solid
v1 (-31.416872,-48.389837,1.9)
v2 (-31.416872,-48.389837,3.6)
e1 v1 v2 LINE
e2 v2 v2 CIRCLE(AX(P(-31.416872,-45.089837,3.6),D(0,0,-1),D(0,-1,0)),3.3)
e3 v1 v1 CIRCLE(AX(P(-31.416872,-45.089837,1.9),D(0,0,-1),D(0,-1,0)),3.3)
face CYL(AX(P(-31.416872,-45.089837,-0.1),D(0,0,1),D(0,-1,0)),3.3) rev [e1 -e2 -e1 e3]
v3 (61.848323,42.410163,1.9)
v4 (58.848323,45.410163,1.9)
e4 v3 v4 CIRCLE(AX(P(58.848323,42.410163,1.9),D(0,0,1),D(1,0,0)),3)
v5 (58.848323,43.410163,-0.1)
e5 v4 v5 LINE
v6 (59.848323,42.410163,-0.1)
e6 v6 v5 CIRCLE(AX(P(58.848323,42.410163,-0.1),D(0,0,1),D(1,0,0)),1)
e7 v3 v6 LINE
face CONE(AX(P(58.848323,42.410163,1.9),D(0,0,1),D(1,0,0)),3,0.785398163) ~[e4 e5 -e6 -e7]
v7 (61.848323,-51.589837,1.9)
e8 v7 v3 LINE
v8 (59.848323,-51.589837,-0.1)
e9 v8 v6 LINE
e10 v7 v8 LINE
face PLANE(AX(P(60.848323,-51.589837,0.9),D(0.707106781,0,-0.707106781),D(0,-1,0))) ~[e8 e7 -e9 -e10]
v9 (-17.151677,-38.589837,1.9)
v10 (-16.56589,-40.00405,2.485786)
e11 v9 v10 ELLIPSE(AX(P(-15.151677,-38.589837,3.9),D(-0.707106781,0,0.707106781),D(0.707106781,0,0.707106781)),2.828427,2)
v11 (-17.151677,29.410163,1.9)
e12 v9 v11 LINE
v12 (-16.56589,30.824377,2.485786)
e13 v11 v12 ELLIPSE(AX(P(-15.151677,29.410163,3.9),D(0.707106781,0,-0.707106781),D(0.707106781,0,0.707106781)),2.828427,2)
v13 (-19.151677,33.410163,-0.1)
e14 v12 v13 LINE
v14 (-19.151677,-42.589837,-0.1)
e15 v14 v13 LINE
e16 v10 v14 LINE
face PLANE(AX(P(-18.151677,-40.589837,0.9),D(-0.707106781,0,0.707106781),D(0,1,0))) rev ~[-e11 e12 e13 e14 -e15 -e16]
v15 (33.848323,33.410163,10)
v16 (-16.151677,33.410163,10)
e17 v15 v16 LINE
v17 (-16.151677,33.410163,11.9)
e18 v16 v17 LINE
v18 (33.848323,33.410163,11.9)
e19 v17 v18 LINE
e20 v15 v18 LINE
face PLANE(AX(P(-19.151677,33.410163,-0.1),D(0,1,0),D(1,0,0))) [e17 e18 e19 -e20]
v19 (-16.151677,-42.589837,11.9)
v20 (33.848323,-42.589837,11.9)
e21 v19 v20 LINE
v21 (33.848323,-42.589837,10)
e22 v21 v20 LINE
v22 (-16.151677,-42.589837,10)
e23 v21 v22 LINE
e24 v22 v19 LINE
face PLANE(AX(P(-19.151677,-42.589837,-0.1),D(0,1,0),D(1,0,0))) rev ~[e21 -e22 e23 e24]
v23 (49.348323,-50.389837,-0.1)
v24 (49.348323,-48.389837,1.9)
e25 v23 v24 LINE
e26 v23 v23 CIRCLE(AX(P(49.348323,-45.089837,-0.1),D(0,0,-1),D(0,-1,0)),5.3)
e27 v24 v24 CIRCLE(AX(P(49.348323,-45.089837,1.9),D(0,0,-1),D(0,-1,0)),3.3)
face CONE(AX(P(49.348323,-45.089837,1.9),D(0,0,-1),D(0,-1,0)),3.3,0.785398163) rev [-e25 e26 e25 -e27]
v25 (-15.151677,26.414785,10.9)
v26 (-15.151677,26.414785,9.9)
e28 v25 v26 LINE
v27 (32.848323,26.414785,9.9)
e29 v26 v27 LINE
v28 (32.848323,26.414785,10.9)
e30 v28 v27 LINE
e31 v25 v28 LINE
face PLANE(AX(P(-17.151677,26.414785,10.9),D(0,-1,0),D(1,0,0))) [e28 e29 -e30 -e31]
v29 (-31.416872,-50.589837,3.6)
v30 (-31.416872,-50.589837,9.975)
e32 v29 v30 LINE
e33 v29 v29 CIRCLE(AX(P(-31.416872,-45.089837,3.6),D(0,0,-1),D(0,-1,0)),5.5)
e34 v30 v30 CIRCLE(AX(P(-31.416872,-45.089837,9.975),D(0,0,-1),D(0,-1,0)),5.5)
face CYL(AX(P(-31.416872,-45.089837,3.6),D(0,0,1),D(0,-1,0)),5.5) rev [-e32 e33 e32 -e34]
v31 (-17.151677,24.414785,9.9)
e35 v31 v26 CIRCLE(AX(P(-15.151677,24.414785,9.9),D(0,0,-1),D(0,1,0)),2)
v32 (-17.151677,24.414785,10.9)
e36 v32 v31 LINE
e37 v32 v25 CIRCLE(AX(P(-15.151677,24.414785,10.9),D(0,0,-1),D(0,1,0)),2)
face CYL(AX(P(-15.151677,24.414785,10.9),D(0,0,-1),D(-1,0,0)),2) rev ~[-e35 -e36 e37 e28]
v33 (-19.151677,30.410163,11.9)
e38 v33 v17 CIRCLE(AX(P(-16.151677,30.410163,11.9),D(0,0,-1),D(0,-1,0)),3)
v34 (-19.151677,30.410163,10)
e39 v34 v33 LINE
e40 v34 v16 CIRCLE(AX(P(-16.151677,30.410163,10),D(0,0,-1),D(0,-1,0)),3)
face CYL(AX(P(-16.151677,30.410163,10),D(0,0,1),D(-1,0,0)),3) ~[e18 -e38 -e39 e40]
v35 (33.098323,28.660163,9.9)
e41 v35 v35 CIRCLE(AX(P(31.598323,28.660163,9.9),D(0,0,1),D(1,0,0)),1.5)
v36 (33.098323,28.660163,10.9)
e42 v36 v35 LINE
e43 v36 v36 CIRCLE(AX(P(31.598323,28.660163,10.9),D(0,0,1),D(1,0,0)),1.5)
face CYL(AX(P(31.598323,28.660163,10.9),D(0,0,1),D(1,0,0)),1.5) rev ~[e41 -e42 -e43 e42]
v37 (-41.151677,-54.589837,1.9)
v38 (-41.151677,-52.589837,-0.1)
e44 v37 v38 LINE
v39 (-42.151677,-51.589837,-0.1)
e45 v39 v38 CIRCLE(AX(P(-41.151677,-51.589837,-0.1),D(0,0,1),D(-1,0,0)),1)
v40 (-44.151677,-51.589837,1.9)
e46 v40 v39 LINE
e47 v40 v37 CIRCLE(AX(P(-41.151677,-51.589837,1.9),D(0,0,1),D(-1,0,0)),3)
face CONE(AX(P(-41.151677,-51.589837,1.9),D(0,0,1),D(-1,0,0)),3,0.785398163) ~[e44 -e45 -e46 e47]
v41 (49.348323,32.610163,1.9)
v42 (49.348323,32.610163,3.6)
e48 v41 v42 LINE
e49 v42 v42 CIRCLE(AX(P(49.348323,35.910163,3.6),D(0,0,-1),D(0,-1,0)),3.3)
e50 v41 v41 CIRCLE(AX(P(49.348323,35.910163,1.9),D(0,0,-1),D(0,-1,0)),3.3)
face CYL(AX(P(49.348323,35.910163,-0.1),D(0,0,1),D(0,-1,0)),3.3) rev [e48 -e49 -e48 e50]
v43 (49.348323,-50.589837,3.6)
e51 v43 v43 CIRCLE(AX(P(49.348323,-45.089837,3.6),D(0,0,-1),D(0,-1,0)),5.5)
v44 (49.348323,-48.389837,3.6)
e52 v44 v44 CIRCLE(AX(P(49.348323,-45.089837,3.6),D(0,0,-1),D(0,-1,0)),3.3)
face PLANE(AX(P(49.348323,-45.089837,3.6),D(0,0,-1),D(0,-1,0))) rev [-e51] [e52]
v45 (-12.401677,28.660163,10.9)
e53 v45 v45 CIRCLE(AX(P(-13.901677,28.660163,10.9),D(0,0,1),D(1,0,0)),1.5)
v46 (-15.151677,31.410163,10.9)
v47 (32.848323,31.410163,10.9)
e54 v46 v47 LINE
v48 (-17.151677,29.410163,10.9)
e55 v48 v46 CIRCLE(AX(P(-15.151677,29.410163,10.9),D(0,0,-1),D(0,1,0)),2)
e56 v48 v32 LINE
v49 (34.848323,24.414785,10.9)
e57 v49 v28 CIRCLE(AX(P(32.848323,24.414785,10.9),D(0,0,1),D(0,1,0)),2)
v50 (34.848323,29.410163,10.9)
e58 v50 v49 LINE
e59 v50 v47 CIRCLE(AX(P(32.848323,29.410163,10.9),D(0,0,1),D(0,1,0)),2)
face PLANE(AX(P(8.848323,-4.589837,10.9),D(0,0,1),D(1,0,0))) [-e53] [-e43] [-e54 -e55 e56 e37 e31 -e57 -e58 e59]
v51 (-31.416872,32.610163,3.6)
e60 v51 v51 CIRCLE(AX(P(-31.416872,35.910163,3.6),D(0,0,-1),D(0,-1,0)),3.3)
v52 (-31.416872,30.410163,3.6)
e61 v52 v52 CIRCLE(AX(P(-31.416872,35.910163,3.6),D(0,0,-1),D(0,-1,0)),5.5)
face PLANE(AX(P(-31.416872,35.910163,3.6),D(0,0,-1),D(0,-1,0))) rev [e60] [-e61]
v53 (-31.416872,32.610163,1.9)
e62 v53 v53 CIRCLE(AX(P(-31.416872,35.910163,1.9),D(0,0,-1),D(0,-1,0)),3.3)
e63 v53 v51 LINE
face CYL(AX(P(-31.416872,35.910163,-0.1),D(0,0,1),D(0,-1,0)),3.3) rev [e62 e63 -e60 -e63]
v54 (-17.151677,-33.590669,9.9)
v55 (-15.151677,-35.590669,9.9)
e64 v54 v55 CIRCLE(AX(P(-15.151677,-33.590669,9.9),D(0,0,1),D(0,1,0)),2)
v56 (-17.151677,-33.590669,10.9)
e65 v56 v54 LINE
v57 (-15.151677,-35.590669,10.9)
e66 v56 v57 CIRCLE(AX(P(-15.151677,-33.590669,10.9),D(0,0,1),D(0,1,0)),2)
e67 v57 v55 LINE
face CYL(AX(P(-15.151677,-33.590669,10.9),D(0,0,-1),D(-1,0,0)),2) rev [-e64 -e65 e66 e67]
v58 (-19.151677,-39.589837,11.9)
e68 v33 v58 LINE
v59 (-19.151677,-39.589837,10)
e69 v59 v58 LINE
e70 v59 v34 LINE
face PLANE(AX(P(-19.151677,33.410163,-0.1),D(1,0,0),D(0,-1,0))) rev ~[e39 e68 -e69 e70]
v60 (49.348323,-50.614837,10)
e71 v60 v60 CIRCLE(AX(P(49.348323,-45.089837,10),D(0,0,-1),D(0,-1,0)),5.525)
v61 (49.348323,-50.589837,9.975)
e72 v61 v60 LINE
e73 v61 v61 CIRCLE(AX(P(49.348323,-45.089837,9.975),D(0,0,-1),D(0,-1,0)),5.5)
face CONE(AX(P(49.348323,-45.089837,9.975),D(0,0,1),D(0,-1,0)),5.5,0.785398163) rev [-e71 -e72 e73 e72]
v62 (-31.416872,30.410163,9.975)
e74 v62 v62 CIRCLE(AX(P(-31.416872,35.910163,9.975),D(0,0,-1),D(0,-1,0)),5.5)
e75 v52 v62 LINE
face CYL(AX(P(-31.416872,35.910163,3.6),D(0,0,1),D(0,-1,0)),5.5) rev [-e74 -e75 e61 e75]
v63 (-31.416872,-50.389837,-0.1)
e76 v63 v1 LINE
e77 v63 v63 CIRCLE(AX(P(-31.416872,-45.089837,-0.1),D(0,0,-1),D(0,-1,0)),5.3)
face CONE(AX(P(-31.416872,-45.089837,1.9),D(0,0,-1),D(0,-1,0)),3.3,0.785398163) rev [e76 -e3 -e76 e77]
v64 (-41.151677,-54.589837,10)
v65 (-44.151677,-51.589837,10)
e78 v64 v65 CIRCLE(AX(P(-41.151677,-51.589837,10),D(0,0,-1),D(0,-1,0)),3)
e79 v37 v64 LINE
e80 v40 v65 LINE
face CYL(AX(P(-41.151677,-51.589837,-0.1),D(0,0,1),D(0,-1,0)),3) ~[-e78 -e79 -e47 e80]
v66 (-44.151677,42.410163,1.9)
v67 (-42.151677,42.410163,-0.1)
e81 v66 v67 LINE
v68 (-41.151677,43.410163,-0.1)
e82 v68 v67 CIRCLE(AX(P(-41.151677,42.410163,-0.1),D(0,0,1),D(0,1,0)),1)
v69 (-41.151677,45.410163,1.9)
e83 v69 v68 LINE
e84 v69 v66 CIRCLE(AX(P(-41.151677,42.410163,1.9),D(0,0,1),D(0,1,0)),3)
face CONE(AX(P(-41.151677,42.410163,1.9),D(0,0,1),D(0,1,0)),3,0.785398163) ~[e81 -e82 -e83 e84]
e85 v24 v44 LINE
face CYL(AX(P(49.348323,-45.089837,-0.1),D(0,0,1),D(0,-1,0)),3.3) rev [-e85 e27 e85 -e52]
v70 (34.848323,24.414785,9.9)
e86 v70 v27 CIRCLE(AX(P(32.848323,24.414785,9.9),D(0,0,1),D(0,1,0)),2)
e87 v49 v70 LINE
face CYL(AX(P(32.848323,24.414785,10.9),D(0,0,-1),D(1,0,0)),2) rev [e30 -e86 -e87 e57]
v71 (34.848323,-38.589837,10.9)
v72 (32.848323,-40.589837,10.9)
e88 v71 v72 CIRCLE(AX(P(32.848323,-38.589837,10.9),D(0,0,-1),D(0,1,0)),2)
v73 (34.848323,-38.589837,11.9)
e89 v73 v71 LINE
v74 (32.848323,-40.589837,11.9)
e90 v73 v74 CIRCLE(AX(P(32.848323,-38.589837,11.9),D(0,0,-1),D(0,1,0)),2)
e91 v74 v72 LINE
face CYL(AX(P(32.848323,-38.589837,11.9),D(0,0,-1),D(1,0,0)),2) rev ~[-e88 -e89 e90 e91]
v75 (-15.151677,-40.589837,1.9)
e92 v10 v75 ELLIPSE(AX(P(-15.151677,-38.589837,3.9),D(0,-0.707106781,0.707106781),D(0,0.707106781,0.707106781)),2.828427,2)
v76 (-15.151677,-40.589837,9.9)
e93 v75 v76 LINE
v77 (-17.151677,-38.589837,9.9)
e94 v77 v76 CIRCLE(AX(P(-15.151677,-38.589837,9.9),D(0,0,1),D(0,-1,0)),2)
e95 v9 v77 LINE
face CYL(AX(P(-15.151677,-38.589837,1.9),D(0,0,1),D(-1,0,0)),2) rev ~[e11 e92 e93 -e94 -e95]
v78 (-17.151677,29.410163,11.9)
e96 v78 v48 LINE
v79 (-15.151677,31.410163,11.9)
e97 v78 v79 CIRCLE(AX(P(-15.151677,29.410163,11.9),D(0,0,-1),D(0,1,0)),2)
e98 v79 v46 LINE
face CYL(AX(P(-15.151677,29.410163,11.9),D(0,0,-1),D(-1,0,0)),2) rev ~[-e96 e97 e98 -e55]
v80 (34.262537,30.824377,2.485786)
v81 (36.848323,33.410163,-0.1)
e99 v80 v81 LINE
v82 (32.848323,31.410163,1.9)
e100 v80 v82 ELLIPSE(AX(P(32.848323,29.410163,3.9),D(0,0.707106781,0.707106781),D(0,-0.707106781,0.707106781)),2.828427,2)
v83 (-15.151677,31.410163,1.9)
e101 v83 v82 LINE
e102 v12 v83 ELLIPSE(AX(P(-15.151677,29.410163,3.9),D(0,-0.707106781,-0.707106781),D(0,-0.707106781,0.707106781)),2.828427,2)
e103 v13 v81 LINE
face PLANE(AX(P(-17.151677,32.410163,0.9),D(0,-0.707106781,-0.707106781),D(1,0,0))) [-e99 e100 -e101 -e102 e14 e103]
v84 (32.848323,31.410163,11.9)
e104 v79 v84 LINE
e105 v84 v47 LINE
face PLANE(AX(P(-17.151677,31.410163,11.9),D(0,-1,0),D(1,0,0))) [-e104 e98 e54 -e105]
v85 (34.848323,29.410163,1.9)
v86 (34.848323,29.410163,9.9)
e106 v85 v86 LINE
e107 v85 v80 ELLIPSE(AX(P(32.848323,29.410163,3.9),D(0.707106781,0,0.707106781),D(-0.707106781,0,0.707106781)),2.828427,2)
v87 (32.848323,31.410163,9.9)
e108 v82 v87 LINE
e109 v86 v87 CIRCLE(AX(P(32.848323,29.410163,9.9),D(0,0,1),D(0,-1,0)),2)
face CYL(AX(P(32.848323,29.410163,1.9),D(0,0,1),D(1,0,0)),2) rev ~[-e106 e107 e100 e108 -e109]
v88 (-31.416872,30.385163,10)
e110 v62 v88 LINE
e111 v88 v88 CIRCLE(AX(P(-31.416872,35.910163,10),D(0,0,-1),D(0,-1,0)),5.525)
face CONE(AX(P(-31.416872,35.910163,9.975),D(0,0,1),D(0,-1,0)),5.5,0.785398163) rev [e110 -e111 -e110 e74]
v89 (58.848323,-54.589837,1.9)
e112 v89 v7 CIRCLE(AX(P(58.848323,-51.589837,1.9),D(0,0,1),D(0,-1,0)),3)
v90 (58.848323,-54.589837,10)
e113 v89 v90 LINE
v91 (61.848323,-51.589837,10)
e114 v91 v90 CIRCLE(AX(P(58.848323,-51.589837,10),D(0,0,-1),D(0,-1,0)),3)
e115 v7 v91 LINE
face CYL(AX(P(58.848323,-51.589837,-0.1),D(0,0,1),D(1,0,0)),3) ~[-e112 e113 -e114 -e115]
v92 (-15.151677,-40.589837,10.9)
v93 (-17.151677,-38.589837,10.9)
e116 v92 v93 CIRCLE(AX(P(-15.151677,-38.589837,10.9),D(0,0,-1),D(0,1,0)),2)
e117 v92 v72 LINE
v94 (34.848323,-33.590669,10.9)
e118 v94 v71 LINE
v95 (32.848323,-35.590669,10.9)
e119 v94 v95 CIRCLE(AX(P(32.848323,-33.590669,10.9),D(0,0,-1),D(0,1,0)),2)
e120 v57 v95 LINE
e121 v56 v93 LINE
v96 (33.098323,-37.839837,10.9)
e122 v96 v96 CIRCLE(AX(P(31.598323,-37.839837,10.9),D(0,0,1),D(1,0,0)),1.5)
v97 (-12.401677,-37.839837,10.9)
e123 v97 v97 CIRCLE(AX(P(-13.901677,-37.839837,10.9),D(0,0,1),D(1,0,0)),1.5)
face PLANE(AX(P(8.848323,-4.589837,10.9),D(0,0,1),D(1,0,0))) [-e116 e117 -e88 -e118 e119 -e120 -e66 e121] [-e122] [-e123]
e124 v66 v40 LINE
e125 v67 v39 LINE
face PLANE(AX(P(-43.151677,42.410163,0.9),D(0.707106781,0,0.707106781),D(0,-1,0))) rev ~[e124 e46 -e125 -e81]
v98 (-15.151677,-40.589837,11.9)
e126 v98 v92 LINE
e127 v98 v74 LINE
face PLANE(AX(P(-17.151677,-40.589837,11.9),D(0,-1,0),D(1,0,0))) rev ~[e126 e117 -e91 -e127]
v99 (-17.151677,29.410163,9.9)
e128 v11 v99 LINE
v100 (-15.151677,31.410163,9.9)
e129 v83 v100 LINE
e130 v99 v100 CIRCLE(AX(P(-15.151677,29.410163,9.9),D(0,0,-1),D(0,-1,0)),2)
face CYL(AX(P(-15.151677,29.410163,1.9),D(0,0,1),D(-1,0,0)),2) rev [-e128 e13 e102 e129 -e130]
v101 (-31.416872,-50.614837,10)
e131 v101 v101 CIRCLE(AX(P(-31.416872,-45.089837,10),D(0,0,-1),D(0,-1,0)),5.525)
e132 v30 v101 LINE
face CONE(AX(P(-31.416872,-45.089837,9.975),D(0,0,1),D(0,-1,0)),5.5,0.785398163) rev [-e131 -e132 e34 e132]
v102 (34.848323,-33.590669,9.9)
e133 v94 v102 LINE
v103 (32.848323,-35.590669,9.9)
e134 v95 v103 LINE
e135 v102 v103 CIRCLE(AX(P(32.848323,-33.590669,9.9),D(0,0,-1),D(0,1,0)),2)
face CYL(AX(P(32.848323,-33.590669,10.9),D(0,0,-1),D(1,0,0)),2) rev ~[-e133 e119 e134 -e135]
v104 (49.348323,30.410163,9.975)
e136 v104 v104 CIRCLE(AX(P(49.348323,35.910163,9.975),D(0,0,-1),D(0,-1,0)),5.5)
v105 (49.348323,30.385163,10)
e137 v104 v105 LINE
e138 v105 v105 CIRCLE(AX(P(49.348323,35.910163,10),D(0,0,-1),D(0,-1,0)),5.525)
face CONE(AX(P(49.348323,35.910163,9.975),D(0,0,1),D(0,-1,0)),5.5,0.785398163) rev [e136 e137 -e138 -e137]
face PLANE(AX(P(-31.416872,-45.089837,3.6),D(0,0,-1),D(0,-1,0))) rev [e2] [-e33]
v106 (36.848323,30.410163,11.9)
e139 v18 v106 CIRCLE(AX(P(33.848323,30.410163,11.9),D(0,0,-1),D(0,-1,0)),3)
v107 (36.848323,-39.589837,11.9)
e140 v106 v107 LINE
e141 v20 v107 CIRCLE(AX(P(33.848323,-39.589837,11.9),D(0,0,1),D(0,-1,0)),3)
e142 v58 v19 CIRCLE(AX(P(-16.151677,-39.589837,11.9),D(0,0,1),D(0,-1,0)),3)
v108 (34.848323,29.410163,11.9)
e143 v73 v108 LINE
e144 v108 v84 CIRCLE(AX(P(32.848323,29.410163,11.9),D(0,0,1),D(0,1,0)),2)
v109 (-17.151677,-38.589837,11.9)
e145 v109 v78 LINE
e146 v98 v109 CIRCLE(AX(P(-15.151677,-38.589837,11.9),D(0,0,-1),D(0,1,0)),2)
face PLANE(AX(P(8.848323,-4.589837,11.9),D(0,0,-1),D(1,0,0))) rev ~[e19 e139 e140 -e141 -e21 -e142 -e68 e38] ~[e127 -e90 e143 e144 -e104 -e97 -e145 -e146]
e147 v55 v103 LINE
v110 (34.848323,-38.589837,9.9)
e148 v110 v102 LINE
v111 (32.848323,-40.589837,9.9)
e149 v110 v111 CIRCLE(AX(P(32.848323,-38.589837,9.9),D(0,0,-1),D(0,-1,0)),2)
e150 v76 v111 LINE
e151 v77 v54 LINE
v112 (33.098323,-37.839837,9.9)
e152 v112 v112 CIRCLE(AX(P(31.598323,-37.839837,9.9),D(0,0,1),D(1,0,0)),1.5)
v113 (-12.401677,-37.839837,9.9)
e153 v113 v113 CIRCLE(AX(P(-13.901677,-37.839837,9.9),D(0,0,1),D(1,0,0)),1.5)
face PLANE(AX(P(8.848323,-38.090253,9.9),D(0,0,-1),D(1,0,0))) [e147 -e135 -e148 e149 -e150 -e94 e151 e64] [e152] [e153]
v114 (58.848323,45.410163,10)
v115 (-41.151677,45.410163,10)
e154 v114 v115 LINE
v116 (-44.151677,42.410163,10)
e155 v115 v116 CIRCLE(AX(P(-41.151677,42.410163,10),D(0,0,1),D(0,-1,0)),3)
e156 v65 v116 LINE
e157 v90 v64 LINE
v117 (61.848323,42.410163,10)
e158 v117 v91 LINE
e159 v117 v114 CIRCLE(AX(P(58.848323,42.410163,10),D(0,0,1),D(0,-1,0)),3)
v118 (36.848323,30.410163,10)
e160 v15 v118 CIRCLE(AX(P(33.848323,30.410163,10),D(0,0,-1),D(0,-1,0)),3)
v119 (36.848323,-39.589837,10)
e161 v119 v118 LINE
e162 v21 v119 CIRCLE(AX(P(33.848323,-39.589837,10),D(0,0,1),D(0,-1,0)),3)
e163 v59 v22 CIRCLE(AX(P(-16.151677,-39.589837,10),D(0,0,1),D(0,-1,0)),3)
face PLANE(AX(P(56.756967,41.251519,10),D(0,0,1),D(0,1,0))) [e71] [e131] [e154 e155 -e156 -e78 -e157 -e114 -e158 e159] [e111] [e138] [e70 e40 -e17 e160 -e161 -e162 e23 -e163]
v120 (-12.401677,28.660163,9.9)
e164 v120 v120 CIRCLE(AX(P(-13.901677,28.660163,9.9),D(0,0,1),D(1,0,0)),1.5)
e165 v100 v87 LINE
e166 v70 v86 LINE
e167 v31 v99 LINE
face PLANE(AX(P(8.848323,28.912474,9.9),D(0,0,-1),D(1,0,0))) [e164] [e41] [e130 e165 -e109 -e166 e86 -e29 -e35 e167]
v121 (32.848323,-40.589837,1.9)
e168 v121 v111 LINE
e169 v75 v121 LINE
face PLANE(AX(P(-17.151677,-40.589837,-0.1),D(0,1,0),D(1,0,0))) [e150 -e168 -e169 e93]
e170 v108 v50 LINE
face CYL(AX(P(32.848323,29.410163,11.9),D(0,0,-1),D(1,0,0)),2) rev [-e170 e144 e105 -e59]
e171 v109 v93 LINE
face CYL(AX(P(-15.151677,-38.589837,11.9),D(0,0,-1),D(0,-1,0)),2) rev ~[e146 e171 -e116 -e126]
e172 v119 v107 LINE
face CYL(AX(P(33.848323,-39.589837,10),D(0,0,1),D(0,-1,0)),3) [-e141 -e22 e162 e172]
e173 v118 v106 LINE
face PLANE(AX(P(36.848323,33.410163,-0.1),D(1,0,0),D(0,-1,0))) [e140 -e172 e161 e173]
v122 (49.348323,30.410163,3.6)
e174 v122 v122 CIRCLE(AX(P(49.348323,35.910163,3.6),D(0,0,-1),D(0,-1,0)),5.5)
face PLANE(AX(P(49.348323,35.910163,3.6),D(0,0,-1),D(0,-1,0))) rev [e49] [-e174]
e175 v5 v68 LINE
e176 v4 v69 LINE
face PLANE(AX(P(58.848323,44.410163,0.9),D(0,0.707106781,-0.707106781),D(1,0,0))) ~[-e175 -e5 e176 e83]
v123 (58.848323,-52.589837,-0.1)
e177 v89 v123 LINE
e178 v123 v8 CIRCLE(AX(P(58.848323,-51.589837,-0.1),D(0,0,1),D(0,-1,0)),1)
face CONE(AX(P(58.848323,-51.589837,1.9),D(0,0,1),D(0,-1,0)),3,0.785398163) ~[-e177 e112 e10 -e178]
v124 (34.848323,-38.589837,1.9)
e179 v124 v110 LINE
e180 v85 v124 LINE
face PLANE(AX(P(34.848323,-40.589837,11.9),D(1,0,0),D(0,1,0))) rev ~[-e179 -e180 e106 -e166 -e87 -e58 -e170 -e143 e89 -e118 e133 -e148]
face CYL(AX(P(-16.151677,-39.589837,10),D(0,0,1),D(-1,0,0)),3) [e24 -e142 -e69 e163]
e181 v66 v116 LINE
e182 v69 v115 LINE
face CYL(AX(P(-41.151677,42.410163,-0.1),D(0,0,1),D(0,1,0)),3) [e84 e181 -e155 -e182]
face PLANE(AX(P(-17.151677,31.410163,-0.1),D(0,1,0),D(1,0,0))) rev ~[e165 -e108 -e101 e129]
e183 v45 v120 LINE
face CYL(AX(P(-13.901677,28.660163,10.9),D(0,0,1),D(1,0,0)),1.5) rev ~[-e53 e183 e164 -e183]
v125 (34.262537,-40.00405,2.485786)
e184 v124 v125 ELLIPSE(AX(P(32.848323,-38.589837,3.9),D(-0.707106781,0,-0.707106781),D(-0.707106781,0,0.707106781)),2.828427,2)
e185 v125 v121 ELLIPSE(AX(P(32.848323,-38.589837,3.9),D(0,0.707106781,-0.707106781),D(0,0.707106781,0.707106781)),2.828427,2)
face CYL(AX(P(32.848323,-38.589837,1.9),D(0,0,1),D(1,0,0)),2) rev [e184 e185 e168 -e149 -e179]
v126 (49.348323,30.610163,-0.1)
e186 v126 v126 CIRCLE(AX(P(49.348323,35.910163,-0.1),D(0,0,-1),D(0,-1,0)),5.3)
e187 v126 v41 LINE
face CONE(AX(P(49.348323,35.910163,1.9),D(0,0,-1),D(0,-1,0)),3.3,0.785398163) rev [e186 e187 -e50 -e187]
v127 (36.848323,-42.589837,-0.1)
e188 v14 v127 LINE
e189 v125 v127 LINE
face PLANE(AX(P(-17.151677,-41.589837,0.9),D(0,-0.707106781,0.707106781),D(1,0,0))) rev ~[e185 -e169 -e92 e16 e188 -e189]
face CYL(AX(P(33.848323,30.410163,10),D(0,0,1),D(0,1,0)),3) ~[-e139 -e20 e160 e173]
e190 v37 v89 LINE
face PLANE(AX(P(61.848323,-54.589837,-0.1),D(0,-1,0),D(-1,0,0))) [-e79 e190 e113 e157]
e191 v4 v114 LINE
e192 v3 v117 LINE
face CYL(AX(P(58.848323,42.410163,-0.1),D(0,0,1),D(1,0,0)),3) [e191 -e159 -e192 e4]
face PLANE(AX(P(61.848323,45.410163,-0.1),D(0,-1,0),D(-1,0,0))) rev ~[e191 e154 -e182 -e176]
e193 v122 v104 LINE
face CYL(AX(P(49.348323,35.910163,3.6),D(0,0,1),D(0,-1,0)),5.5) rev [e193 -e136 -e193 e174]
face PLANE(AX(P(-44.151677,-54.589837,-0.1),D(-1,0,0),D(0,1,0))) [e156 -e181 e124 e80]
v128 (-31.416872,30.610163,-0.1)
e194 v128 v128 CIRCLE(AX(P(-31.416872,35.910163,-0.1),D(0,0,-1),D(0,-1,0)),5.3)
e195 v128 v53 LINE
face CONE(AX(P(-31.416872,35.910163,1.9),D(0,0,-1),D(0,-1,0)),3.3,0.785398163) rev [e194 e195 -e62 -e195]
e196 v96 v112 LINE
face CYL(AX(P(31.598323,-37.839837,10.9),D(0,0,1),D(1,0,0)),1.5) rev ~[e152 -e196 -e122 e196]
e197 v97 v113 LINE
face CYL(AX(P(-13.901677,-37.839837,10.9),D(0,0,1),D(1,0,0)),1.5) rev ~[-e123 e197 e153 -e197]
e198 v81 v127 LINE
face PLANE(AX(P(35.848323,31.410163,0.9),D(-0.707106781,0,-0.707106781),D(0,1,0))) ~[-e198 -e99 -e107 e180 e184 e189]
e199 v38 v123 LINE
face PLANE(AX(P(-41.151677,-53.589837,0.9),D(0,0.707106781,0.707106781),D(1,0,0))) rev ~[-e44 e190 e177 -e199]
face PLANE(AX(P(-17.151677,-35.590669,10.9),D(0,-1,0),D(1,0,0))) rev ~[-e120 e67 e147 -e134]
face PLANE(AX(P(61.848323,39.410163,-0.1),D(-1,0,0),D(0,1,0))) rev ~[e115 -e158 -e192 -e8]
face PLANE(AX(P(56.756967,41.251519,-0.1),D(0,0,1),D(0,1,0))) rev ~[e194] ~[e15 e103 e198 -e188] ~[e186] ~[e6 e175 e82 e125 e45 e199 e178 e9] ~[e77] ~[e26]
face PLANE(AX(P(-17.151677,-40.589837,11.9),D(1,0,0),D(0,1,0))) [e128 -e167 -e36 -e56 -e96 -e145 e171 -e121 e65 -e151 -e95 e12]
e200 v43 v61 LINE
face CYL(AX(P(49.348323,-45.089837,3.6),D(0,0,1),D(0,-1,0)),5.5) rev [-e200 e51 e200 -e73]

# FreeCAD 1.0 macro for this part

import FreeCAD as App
import Part
import Sketcher

V = App.Vector
Q = App.Units.Quantity


def edges_at(feature, points):
    """Names of the edges that pass closest to the given points."""
    edges = feature.Shape.Edges
    near = lambda p: min(range(len(edges)), key=lambda i: edges[i].distToShape(Part.Vertex(*p))[0])
    return sorted({f"Edge{near(p) + 1}" for p in points})

doc = App.newDocument("Part")
params = doc.addObject("Spreadsheet::Sheet", "Params")
for row, (alias, value) in enumerate([
    ("sketch1_width", "106 mm"),
    ("sketch1_width2", "56 mm"),
    ("sketch1_height", "100 mm"),
    ("sketch1_height2", "76 mm"),
    ("pad1_length", "10 mm"),
    ("pad1_length2", "0.1 mm"),
    ("sketch2_width", "2.2 mm"),
    ("sketch2_width2", "3.3 mm"),
    ("sketch2_height", "10.1 mm"),
    ("sketch2_height2", "3.7 mm"),
    ("groove_angle", "360 deg"),
    ("linearpattern_pitch", "81 mm"),
    ("linearpattern2_pitch", "114.385387 mm"),
    ("linearpattern3_pitch", "80.765195 mm"),
    ("sketch3_width", "56 mm"),
    ("sketch3_height", "76 mm"),
    ("pad2_length", "12 mm"),
    ("sketch4_width", "52 mm"),
    ("sketch4_height", "72 mm"),
    ("pad3_length", "1 mm"),
    ("sketch5_width", "52 mm"),
    ("sketch5_height", "72 mm"),
    ("pocket1_length", "1 mm"),
    ("sketch6_width", "52 mm"),
    ("pocket2_length", "11 mm"),
    ("sketch7_width", "52 mm"),
    ("pocket3_length", "10 mm"),
    ("sketch8_diameter", "3 mm"),
    ("pocket4_length", "2 mm"),
    ("sketch9_diameter", "3 mm"),
    ("pocket5_length", "2 mm"),
    ("sketch10_diameter", "3 mm"),
    ("pocket6_length", "2 mm"),
    ("sketch11_diameter", "3 mm"),
    ("pocket7_length", "2 mm"),
    ("fillet_radius", "3 mm"),
    ("chamfer_size", "2 mm"),
    ("fillet2_radius", "2 mm"),
    ("fillet3_radius", "2 mm"),
], start=1):
    params.set(f"A{row}", alias)
    params.set(f"B{row}", "=" + value)
    params.setAlias(f"B{row}", alias)

body = doc.addObject("PartDesign::Body", "Body")

# Sketch on XY plane
sketch1 = body.newObject("Sketcher::SketchObject", "Sketch")
sketch1.AttachmentSupport = (doc.getObject("XY_Plane"), [""])
sketch1.MapMode = "FlatFace"
sketch1.addGeometry(Part.LineSegment(V(-44, -55, 0), V(62, -55, 0)), False)
sketch1.addGeometry(Part.LineSegment(V(62, -55, 0), V(62, 45, 0)), False)
sketch1.addGeometry(Part.LineSegment(V(62, 45, 0), V(-44, 45, 0)), False)
sketch1.addGeometry(Part.LineSegment(V(-44, 45, 0), V(-44, -55, 0)), False)
sketch1.addGeometry(Part.LineSegment(V(-19, -43, 0), V(-19, 33, 0)), False)
sketch1.addGeometry(Part.LineSegment(V(-19, 33, 0), V(37, 33, 0)), False)
sketch1.addGeometry(Part.LineSegment(V(37, 33, 0), V(37, -43, 0)), False)
sketch1.addGeometry(Part.LineSegment(V(37, -43, 0), V(-19, -43, 0)), False)
sketch1.addConstraint(Sketcher.Constraint("Coincident", 0, 2, 1, 1))
sketch1.addConstraint(Sketcher.Constraint("Coincident", 1, 2, 2, 1))
sketch1.addConstraint(Sketcher.Constraint("Coincident", 2, 2, 3, 1))
sketch1.addConstraint(Sketcher.Constraint("Coincident", 3, 2, 0, 1))
sketch1.addConstraint(Sketcher.Constraint("Coincident", 4, 2, 5, 1))
sketch1.addConstraint(Sketcher.Constraint("Coincident", 5, 2, 6, 1))
sketch1.addConstraint(Sketcher.Constraint("Coincident", 6, 2, 7, 1))
sketch1.addConstraint(Sketcher.Constraint("Coincident", 7, 2, 4, 1))
sketch1.addConstraint(Sketcher.Constraint("Horizontal", 0))
sketch1.addConstraint(Sketcher.Constraint("Vertical", 1))
sketch1.addConstraint(Sketcher.Constraint("Horizontal", 2))
sketch1.addConstraint(Sketcher.Constraint("Vertical", 3))
sketch1.addConstraint(Sketcher.Constraint("Vertical", 4))
sketch1.addConstraint(Sketcher.Constraint("Horizontal", 5))
sketch1.addConstraint(Sketcher.Constraint("Vertical", 6))
sketch1.addConstraint(Sketcher.Constraint("Horizontal", 7))
sketch1.addConstraint(Sketcher.Constraint("DistanceX", 0, 1, 0, 2, Q("106 mm")))
sketch1.addConstraint(Sketcher.Constraint("DistanceX", 5, 1, 5, 2, Q("56 mm")))
sketch1.addConstraint(Sketcher.Constraint("DistanceY", 1, 1, 1, 2, Q("100 mm")))
sketch1.addConstraint(Sketcher.Constraint("DistanceY", 4, 1, 4, 2, Q("76 mm")))
sketch1.addConstraint(Sketcher.Constraint("DistanceX", 2, 2, 4, 2, Q("25 mm")))
sketch1.addConstraint(Sketcher.Constraint("DistanceY", 4, 2, 2, 2, Q("12 mm")))
sketch1.addConstraint(Sketcher.Constraint("DistanceX", -1, 1, 0, 2, Q("61.848323 mm")))
sketch1.addConstraint(Sketcher.Constraint("DistanceY", 0, 2, -1, 1, Q("54.589837 mm")))
sketch1.setExpression("Constraints[16]", "Params.sketch1_width")
sketch1.setExpression("Constraints[17]", "Params.sketch1_width2")
sketch1.setExpression("Constraints[18]", "Params.sketch1_height")
sketch1.setExpression("Constraints[19]", "Params.sketch1_height2")
pad1 = body.newObject("PartDesign::Pad", "Pad")
pad1.Profile = sketch1
pad1.Type = "TwoLengths"
pad1.setExpression("Length", "Params.pad1_length")
pad1.setExpression("Length2", "Params.pad1_length2")

# Sketch on YZ plane
sketch2 = body.newObject("Sketcher::SketchObject", "Sketch001")
sketch2.AttachmentSupport = (doc.getObject("YZ_Plane"), [""])
sketch2.MapMode = "FlatFace"
sketch2.AttachmentOffset = App.Placement(V(0, 0, 49.348323), App.Rotation())
sketch2.addGeometry(Part.LineSegment(V(-45.09, -0.1, 0), V(-45.09, 10, 0)), False)
sketch2.addGeometry(Part.LineSegment(V(-45.09, 10, 0), V(-50.615, 10, 0)), False)
sketch2.addGeometry(Part.LineSegment(V(-50.615, 10, 0), V(-50.59, 9.975, 0)), False)
sketch2.addGeometry(Part.LineSegment(V(-50.59, 9.975, 0), V(-50.59, 3.6, 0)), False)
sketch2.addGeometry(Part.LineSegment(V(-50.59, 3.6, 0), V(-48.39, 3.6, 0)), False)
sketch2.addGeometry(Part.LineSegment(V(-48.39, 3.6, 0), V(-48.39, -0.1, 0)), False)
sketch2.addGeometry(Part.LineSegment(V(-48.39, -0.1, 0), V(-45.09, -0.1, 0)), False)
sketch2.addGeometry(Part.LineSegment(V(-45.09, 10, 0), V(-45.09, -0.1, 0)), True)  # axis
sketch2.addConstraint(Sketcher.Constraint("Coincident", 0, 2, 1, 1))
sketch2.addConstraint(Sketcher.Constraint("Coincident", 1, 2, 2, 1))
sketch2.addConstraint(Sketcher.Constraint("Coincident", 2, 2, 3, 1))
sketch2.addConstraint(Sketcher.Constraint("Coincident", 3, 2, 4, 1))
sketch2.addConstraint(Sketcher.Constraint("Coincident", 4, 2, 5, 1))
sketch2.addConstraint(Sketcher.Constraint("Coincident", 5, 2, 6, 1))
sketch2.addConstraint(Sketcher.Constraint("Coincident", 6, 2, 0, 1))
sketch2.addConstraint(Sketcher.Constraint("Vertical", 0))
sketch2.addConstraint(Sketcher.Constraint("Horizontal", 1))
sketch2.addConstraint(Sketcher.Constraint("Vertical", 3))
sketch2.addConstraint(Sketcher.Constraint("Horizontal", 4))
sketch2.addConstraint(Sketcher.Constraint("Vertical", 5))
sketch2.addConstraint(Sketcher.Constraint("Horizontal", 6))
sketch2.addConstraint(Sketcher.Constraint("Vertical", 7))
sketch2.addConstraint(Sketcher.Constraint("Coincident", 7, 1, 0, 2))
sketch2.addConstraint(Sketcher.Constraint("Horizontal", 5, 2, 7, 2))
sketch2.addConstraint(Sketcher.Constraint("Angle", 2, Q("-45 deg")))
sketch2.addConstraint(Sketcher.Constraint("DistanceX", 4, 1, 4, 2, Q("2.2 mm")))
sketch2.addConstraint(Sketcher.Constraint("DistanceX", 6, 1, 6, 2, Q("3.3 mm")))
sketch2.addConstraint(Sketcher.Constraint("DistanceY", 0, 1, 0, 2, Q("10.1 mm")))
sketch2.addConstraint(Sketcher.Constraint("DistanceY", 5, 2, 5, 1, Q("3.7 mm")))
sketch2.addConstraint(Sketcher.Constraint("DistanceY", -1, 1, 0, 2, Q("10 mm")))
sketch2.addConstraint(Sketcher.Constraint("DistanceX", 1, 2, 1, 1, Q("5.525 mm")))
sketch2.addConstraint(Sketcher.Constraint("DistanceX", 0, 2, -1, 1, Q("45.089837 mm")))
sketch2.setExpression("Constraints[17]", "Params.sketch2_width")
sketch2.setExpression("Constraints[18]", "Params.sketch2_width2")
sketch2.setExpression("Constraints[19]", "Params.sketch2_height")
sketch2.setExpression("Constraints[20]", "Params.sketch2_height2")
groove = body.newObject("PartDesign::Groove", "Groove")
groove.Profile = sketch2
groove.ReferenceAxis = (sketch2, ["Axis0"])
groove.setExpression("Angle", "Params.groove_angle")
doc.recompute()

linearpattern = body.newObject("PartDesign::LinearPattern", "LinearPattern")
linearpattern.Originals = [groove]
linearpattern.Direction = (doc.getObject("Y_Axis"), [""])
linearpattern.Mode = "offset"
linearpattern.setExpression("Offset", "Params.linearpattern_pitch")
linearpattern.Occurrences = 2
body.Tip = linearpattern
doc.recompute()

datumline = body.newObject("PartDesign::Line", "DatumLine")
datumline.Placement = App.Placement(V(0, 0, 0), App.Rotation(V(0, 0, 1), V(-0.706079659, 0.708132413, 0)))
linearpattern2 = body.newObject("PartDesign::LinearPattern", "LinearPattern001")
linearpattern2.Originals = [groove]
linearpattern2.Direction = (datumline, [""])
linearpattern2.Mode = "offset"
linearpattern2.setExpression("Offset", "Params.linearpattern2_pitch")
linearpattern2.Occurrences = 2
body.Tip = linearpattern2
doc.recompute()

linearpattern3 = body.newObject("PartDesign::LinearPattern", "LinearPattern002")
linearpattern3.Originals = [groove]
linearpattern3.Direction = (doc.getObject("X_Axis"), [""])
linearpattern3.Mode = "offset"
linearpattern3.setExpression("Offset", "Params.linearpattern3_pitch")
linearpattern3.Occurrences = 2
linearpattern3.Reversed = True
body.Tip = linearpattern3

# Sketch on XY plane
sketch3 = body.newObject("Sketcher::SketchObject", "Sketch002")
sketch3.AttachmentSupport = (doc.getObject("XY_Plane"), [""])
sketch3.MapMode = "FlatFace"
sketch3.AttachmentOffset = App.Placement(V(0, 0, -0.1), App.Rotation())
sketch3.addGeometry(Part.LineSegment(V(-19, -43, 0), V(-19, 33, 0)), False)
sketch3.addGeometry(Part.LineSegment(V(-19, 33, 0), V(37, 33, 0)), False)
sketch3.addGeometry(Part.LineSegment(V(37, 33, 0), V(37, -43, 0)), False)
sketch3.addGeometry(Part.LineSegment(V(37, -43, 0), V(-19, -43, 0)), False)
sketch3.addConstraint(Sketcher.Constraint("Coincident", 0, 2, 1, 1))
sketch3.addConstraint(Sketcher.Constraint("Coincident", 1, 2, 2, 1))
sketch3.addConstraint(Sketcher.Constraint("Coincident", 2, 2, 3, 1))
sketch3.addConstraint(Sketcher.Constraint("Coincident", 3, 2, 0, 1))
sketch3.addConstraint(Sketcher.Constraint("Vertical", 0))
sketch3.addConstraint(Sketcher.Constraint("Horizontal", 1))
sketch3.addConstraint(Sketcher.Constraint("Vertical", 2))
sketch3.addConstraint(Sketcher.Constraint("Horizontal", 3))
sketch3.addConstraint(Sketcher.Constraint("DistanceX", 1, 1, 1, 2, Q("56 mm")))
sketch3.addConstraint(Sketcher.Constraint("DistanceY", 0, 1, 0, 2, Q("76 mm")))
sketch3.addConstraint(Sketcher.Constraint("DistanceX", 0, 2, -1, 1, Q("19.151677 mm")))
sketch3.addConstraint(Sketcher.Constraint("DistanceY", -1, 1, 0, 2, Q("33.410163 mm")))
sketch3.setExpression("Constraints[8]", "Params.sketch3_width")
sketch3.setExpression("Constraints[9]", "Params.sketch3_height")
pad2 = body.newObject("PartDesign::Pad", "Pad001")
pad2.Profile = sketch3
pad2.setExpression("Length", "Params.pad2_length")

# Sketch on XY plane
sketch4 = body.newObject("Sketcher::SketchObject", "Sketch003")
sketch4.AttachmentSupport = (doc.getObject("XY_Plane"), [""])
sketch4.MapMode = "FlatFace"
sketch4.AttachmentOffset = App.Placement(V(0, 0, 11.9), App.Rotation())
sketch4.addGeometry(Part.LineSegment(V(-17, 31, 0), V(-17, -41, 0)), False)
sketch4.addGeometry(Part.LineSegment(V(-17, -41, 0), V(35, -41, 0)), False)
sketch4.addGeometry(Part.LineSegment(V(35, -41, 0), V(35, 31, 0)), False)
sketch4.addGeometry(Part.LineSegment(V(35, 31, 0), V(-17, 31, 0)), False)
sketch4.addConstraint(Sketcher.Constraint("Coincident", 0, 2, 1, 1))
sketch4.addConstraint(Sketcher.Constraint("Coincident", 1, 2, 2, 1))
sketch4.addConstraint(Sketcher.Constraint("Coincident", 2, 2, 3, 1))
sketch4.addConstraint(Sketcher.Constraint("Coincident", 3, 2, 0, 1))
sketch4.addConstraint(Sketcher.Constraint("Vertical", 0))
sketch4.addConstraint(Sketcher.Constraint("Horizontal", 1))
sketch4.addConstraint(Sketcher.Constraint("Vertical", 2))
sketch4.addConstraint(Sketcher.Constraint("Horizontal", 3))
sketch4.addConstraint(Sketcher.Constraint("DistanceX", 1, 1, 1, 2, Q("52 mm")))
sketch4.addConstraint(Sketcher.Constraint("DistanceY", 0, 2, 0, 1, Q("72 mm")))
sketch4.addConstraint(Sketcher.Constraint("DistanceX", 0, 2, -1, 1, Q("17.151677 mm")))
sketch4.addConstraint(Sketcher.Constraint("DistanceY", 0, 2, -1, 1, Q("40.589837 mm")))
sketch4.setExpression("Constraints[8]", "Params.sketch4_width")
sketch4.setExpression("Constraints[9]", "Params.sketch4_height")
pad3 = body.newObject("PartDesign::Pad", "Pad002")
pad3.Profile = sketch4
pad3.setExpression("Length", "Params.pad3_length")
pad3.Reversed = True

# Sketch on XY plane
sketch5 = body.newObject("Sketcher::SketchObject", "Sketch004")
sketch5.AttachmentSupport = (doc.getObject("XY_Plane"), [""])
sketch5.MapMode = "FlatFace"
sketch5.AttachmentOffset = App.Placement(V(0, 0, 11.9), App.Rotation())
sketch5.addGeometry(Part.LineSegment(V(-17, 31, 0), V(-17, -41, 0)), False)
sketch5.addGeometry(Part.LineSegment(V(-17, -41, 0), V(35, -41, 0)), False)
sketch5.addGeometry(Part.LineSegment(V(35, -41, 0), V(35, 31, 0)), False)
sketch5.addGeometry(Part.LineSegment(V(35, 31, 0), V(-17, 31, 0)), False)
sketch5.addConstraint(Sketcher.Constraint("Coincident", 0, 2, 1, 1))
sketch5.addConstraint(Sketcher.Constraint("Coincident", 1, 2, 2, 1))
sketch5.addConstraint(Sketcher.Constraint("Coincident", 2, 2, 3, 1))
sketch5.addConstraint(Sketcher.Constraint("Coincident", 3, 2, 0, 1))
sketch5.addConstraint(Sketcher.Constraint("Vertical", 0))
sketch5.addConstraint(Sketcher.Constraint("Horizontal", 1))
sketch5.addConstraint(Sketcher.Constraint("Vertical", 2))
sketch5.addConstraint(Sketcher.Constraint("Horizontal", 3))
sketch5.addConstraint(Sketcher.Constraint("DistanceX", 1, 1, 1, 2, Q("52 mm")))
sketch5.addConstraint(Sketcher.Constraint("DistanceY", 0, 2, 0, 1, Q("72 mm")))
sketch5.addConstraint(Sketcher.Constraint("DistanceX", 0, 2, -1, 1, Q("17.151677 mm")))
sketch5.addConstraint(Sketcher.Constraint("DistanceY", 0, 2, -1, 1, Q("40.589837 mm")))
sketch5.setExpression("Constraints[8]", "Params.sketch5_width")
sketch5.setExpression("Constraints[9]", "Params.sketch5_height")
pocket1 = body.newObject("PartDesign::Pocket", "Pocket")
pocket1.Profile = sketch5
pocket1.setExpression("Length", "Params.pocket1_length")

# Sketch on XY plane
sketch6 = body.newObject("Sketcher::SketchObject", "Sketch005")
sketch6.AttachmentSupport = (doc.getObject("XY_Plane"), [""])
sketch6.MapMode = "FlatFace"
sketch6.AttachmentOffset = App.Placement(V(0, 0, 10.9), App.Rotation())
sketch6.addGeometry(Part.LineSegment(V(-17, 26, 0), V(-17, -36, 0)), False)
sketch6.addGeometry(Part.LineSegment(V(-17, -36, 0), V(35, -36, 0)), False)
sketch6.addGeometry(Part.LineSegment(V(35, -36, 0), V(35, 26, 0)), False)
sketch6.addGeometry(Part.LineSegment(V(35, 26, 0), V(-17, 26, 0)), False)
sketch6.addConstraint(Sketcher.Constraint("Coincident", 0, 2, 1, 1))
sketch6.addConstraint(Sketcher.Constraint("Coincident", 1, 2, 2, 1))
sketch6.addConstraint(Sketcher.Constraint("Coincident", 2, 2, 3, 1))
sketch6.addConstraint(Sketcher.Constraint("Coincident", 3, 2, 0, 1))
sketch6.addConstraint(Sketcher.Constraint("Vertical", 0))
sketch6.addConstraint(Sketcher.Constraint("Horizontal", 1))
sketch6.addConstraint(Sketcher.Constraint("Vertical", 2))
sketch6.addConstraint(Sketcher.Constraint("Horizontal", 3))
sketch6.addConstraint(Sketcher.Constraint("DistanceX", 1, 1, 1, 2, Q("52 mm")))
sketch6.addConstraint(Sketcher.Constraint("DistanceY", 0, 2, 0, 1, Q("62.005454 mm")))
sketch6.addConstraint(Sketcher.Constraint("DistanceY", 0, 2, -1, 1, Q("35.590669 mm")))
sketch6.addConstraint(Sketcher.Constraint("DistanceX", 0, 2, -1, 1, Q("17.151677 mm")))
sketch6.setExpression("Constraints[8]", "Params.sketch6_width")
pocket2 = body.newObject("PartDesign::Pocket", "Pocket001")
pocket2.Profile = sketch6
pocket2.setExpression("Length", "Params.pocket2_length")

# Sketch on XY plane
sketch7 = body.newObject("Sketcher::SketchObject", "Sketch006")
sketch7.AttachmentSupport = (doc.getObject("XY_Plane"), [""])
sketch7.MapMode = "FlatFace"
sketch7.AttachmentOffset = App.Placement(V(0, 0, -0.1), App.Rotation())
sketch7.addGeometry(Part.LineSegment(V(-17.2, -40.6, 0), V(-17.2, -35.6, 0)), False)
sketch7.addGeometry(Part.LineSegment(V(-17.2, -35.6, 0), V(34.8, -35.6, 0)), False)
sketch7.addGeometry(Part.LineSegment(V(34.8, -35.6, 0), V(34.8, -40.6, 0)), False)
sketch7.addGeometry(Part.LineSegment(V(34.8, -40.6, 0), V(-17.2, -40.6, 0)), False)
sketch7.addGeometry(Part.LineSegment(V(-17.2, 26.4, 0), V(-17.2, 31.4, 0)), False)
sketch7.addGeometry(Part.LineSegment(V(-17.2, 31.4, 0), V(34.8, 31.4, 0)), False)
sketch7.addGeometry(Part.LineSegment(V(34.8, 31.4, 0), V(34.8, 26.4, 0)), False)
sketch7.addGeometry(Part.LineSegment(V(34.8, 26.4, 0), V(-17.2, 26.4, 0)), False)
sketch7.addConstraint(Sketcher.Constraint("Coincident", 0, 2, 1, 1))
sketch7.addConstraint(Sketcher.Constraint("Coincident", 1, 2, 2, 1))
sketch7.addConstraint(Sketcher.Constraint("Coincident", 2, 2, 3, 1))
sketch7.addConstraint(Sketcher.Constraint("Coincident", 3, 2, 0, 1))
sketch7.addConstraint(Sketcher.Constraint("Coincident", 4, 2, 5, 1))
sketch7.addConstraint(Sketcher.Constraint("Coincident", 5, 2, 6, 1))
sketch7.addConstraint(Sketcher.Constraint("Coincident", 6, 2, 7, 1))
sketch7.addConstraint(Sketcher.Constraint("Coincident", 7, 2, 4, 1))
sketch7.addConstraint(Sketcher.Constraint("Vertical", 0))
sketch7.addConstraint(Sketcher.Constraint("Horizontal", 1))
sketch7.addConstraint(Sketcher.Constraint("Vertical", 2))
sketch7.addConstraint(Sketcher.Constraint("Horizontal", 3))
sketch7.addConstraint(Sketcher.Constraint("Vertical", 4))
sketch7.addConstraint(Sketcher.Constraint("Horizontal", 5))
sketch7.addConstraint(Sketcher.Constraint("Vertical", 6))
sketch7.addConstraint(Sketcher.Constraint("Horizontal", 7))
sketch7.addConstraint(Sketcher.Constraint("Vertical", 3, 2, 4, 2))
sketch7.addConstraint(Sketcher.Constraint("Vertical", 2, 2, 5, 2))
sketch7.addConstraint(Sketcher.Constraint("DistanceX", 1, 1, 1, 2, Q("52 mm")))
sketch7.addConstraint(Sketcher.Constraint("DistanceY", 3, 2, 4, 2, Q("72 mm")))
sketch7.addConstraint(Sketcher.Constraint("DistanceY", 0, 1, 0, 2, Q("4.999168 mm")))
sketch7.addConstraint(Sketcher.Constraint("DistanceY", 4, 1, 4, 2, Q("4.995378 mm")))
sketch7.addConstraint(Sketcher.Constraint("DistanceY", 0, 2, -1, 1, Q("35.590669 mm")))
sketch7.addConstraint(Sketcher.Constraint("DistanceX", 0, 2, -1, 1, Q("17.151677 mm")))
sketch7.setExpression("Constraints[18]", "Params.sketch7_width")
pocket3 = body.newObject("PartDesign::Pocket", "Pocket002")
pocket3.Profile = sketch7
pocket3.setExpression("Length", "Params.pocket3_length")
pocket3.Reversed = True

# Sketch on XY plane
sketch8 = body.newObject("Sketcher::SketchObject", "Sketch007")
sketch8.AttachmentSupport = (doc.getObject("XY_Plane"), [""])
sketch8.MapMode = "FlatFace"
sketch8.AttachmentOffset = App.Placement(V(0, 0, 10.9), App.Rotation())
sketch8.addGeometry(Part.Circle(V(-13.9, 28.7, 0), V(0, 0, 1), 1.5), False)
sketch8.addConstraint(Sketcher.Constraint("Diameter", 0, Q("3 mm")))
sketch8.addConstraint(Sketcher.Constraint("DistanceX", 0, 3, -1, 1, Q("13.901677 mm")))
sketch8.addConstraint(Sketcher.Constraint("DistanceY", -1, 1, 0, 3, Q("28.660163 mm")))
sketch8.setExpression("Constraints[0]", "Params.sketch8_diameter")
pocket4 = body.newObject("PartDesign::Pocket", "Pocket003")
pocket4.Profile = sketch8
pocket4.setExpression("Length", "Params.pocket4_length")

# Sketch on XY plane
sketch9 = body.newObject("Sketcher::SketchObject", "Sketch008")
sketch9.AttachmentSupport = (doc.getObject("XY_Plane"), [""])
sketch9.MapMode = "FlatFace"
sketch9.AttachmentOffset = App.Placement(V(0, 0, 10.9), App.Rotation())
sketch9.addGeometry(Part.Circle(V(31.6, 28.7, 0), V(0, 0, 1), 1.5), False)
sketch9.addConstraint(Sketcher.Constraint("Diameter", 0, Q("3 mm")))
sketch9.addConstraint(Sketcher.Constraint("DistanceX", -1, 1, 0, 3, Q("31.598323 mm")))
sketch9.addConstraint(Sketcher.Constraint("DistanceY", -1, 1, 0, 3, Q("28.660163 mm")))
sketch9.setExpression("Constraints[0]", "Params.sketch9_diameter")
pocket5 = body.newObject("PartDesign::Pocket", "Pocket004")
pocket5.Profile = sketch9
pocket5.setExpression("Length", "Params.pocket5_length")

# Sketch on XY plane
sketch10 = body.newObject("Sketcher::SketchObject", "Sketch009")
sketch10.AttachmentSupport = (doc.getObject("XY_Plane"), [""])
sketch10.MapMode = "FlatFace"
sketch10.AttachmentOffset = App.Placement(V(0, 0, 10.9), App.Rotation())
sketch10.addGeometry(Part.Circle(V(-13.9, -37.8, 0), V(0, 0, 1), 1.5), False)
sketch10.addConstraint(Sketcher.Constraint("Diameter", 0, Q("3 mm")))
sketch10.addConstraint(Sketcher.Constraint("DistanceX", 0, 3, -1, 1, Q("13.901677 mm")))
sketch10.addConstraint(Sketcher.Constraint("DistanceY", 0, 3, -1, 1, Q("37.839837 mm")))
sketch10.setExpression("Constraints[0]", "Params.sketch10_diameter")
pocket6 = body.newObject("PartDesign::Pocket", "Pocket005")
pocket6.Profile = sketch10
pocket6.setExpression("Length", "Params.pocket6_length")

# Sketch on XY plane
sketch11 = body.newObject("Sketcher::SketchObject", "Sketch010")
sketch11.AttachmentSupport = (doc.getObject("XY_Plane"), [""])
sketch11.MapMode = "FlatFace"
sketch11.AttachmentOffset = App.Placement(V(0, 0, 10.9), App.Rotation())
sketch11.addGeometry(Part.Circle(V(31.6, -37.8, 0), V(0, 0, 1), 1.5), False)
sketch11.addConstraint(Sketcher.Constraint("Diameter", 0, Q("3 mm")))
sketch11.addConstraint(Sketcher.Constraint("DistanceX", -1, 1, 0, 3, Q("31.598323 mm")))
sketch11.addConstraint(Sketcher.Constraint("DistanceY", 0, 3, -1, 1, Q("37.839837 mm")))
sketch11.setExpression("Constraints[0]", "Params.sketch11_diameter")
pocket7 = body.newObject("PartDesign::Pocket", "Pocket006")
pocket7.Profile = sketch11
pocket7.setExpression("Length", "Params.pocket7_length")
doc.recompute()

fillet = body.newObject("PartDesign::Fillet", "Fillet")
fillet.Base = (pocket7, edges_at(pocket7, [
    (61.848, -54.59, 4.95),
    (-44.152, -54.59, 4.95),
    (-44.152, 45.41, 4.95),
    (61.848, 45.41, 4.95),
    (-19.152, 33.41, 10.95),
    (-19.152, -42.59, 10.95),
    (36.848, -42.59, 10.95),
    (36.848, 33.41, 10.95),
]))
fillet.setExpression("Radius", "Params.fillet_radius")
doc.recompute()

chamfer = body.newObject("PartDesign::Chamfer", "Chamfer")
chamfer.Base = (fillet, edges_at(fillet, [
    (-17.152, -4.59, -0.1),
    (34.848, -4.59, -0.1),
    (8.848, -40.59, -0.1),
    (8.848, 31.41, -0.1),
    (8.848, 45.41, -0.1),
    (-44.152, -4.59, -0.1),
    (61.848, -4.59, -0.1),
    (8.848, -54.59, -0.1),
    (-43.273, -53.711, -0.1),
    (60.97, -53.711, -0.1),
    (60.97, 44.531, -0.1),
    (-43.273, 44.531, -0.1),
    (49.348, -41.79, -0.1),
    (-31.417, -41.79, -0.1),
    (-31.417, 39.21, -0.1),
    (49.348, 39.21, -0.1),
]))
chamfer.setExpression("Size", "Params.chamfer_size")
doc.recompute()

fillet2 = body.newObject("PartDesign::Fillet", "Fillet001")
fillet2.Base = (chamfer, edges_at(chamfer, [(34.848, -35.591, 10.4)]))
fillet2.setExpression("Radius", "Params.fillet2_radius")
doc.recompute()

fillet3 = body.newObject("PartDesign::Fillet", "Fillet002")
fillet3.Base = (fillet2, edges_at(fillet2, [
    (-17.152, -40.59, 11.4),
    (-17.152, 31.41, 11.4),
    (34.848, 31.41, 11.4),
    (34.848, -40.59, 11.4),
    (-17.152, 26.415, 10.4),
    (34.848, 26.415, 10.4),
    (-17.152, -35.591, 10.4),
    (-17.152, -40.59, 5.9),
    (34.848, -40.59, 5.9),
    (34.848, 31.41, 5.9),
    (-17.152, 31.41, 5.9),
]))
fillet3.setExpression("Radius", "Params.fillet3_radius")

doc.recompute()
